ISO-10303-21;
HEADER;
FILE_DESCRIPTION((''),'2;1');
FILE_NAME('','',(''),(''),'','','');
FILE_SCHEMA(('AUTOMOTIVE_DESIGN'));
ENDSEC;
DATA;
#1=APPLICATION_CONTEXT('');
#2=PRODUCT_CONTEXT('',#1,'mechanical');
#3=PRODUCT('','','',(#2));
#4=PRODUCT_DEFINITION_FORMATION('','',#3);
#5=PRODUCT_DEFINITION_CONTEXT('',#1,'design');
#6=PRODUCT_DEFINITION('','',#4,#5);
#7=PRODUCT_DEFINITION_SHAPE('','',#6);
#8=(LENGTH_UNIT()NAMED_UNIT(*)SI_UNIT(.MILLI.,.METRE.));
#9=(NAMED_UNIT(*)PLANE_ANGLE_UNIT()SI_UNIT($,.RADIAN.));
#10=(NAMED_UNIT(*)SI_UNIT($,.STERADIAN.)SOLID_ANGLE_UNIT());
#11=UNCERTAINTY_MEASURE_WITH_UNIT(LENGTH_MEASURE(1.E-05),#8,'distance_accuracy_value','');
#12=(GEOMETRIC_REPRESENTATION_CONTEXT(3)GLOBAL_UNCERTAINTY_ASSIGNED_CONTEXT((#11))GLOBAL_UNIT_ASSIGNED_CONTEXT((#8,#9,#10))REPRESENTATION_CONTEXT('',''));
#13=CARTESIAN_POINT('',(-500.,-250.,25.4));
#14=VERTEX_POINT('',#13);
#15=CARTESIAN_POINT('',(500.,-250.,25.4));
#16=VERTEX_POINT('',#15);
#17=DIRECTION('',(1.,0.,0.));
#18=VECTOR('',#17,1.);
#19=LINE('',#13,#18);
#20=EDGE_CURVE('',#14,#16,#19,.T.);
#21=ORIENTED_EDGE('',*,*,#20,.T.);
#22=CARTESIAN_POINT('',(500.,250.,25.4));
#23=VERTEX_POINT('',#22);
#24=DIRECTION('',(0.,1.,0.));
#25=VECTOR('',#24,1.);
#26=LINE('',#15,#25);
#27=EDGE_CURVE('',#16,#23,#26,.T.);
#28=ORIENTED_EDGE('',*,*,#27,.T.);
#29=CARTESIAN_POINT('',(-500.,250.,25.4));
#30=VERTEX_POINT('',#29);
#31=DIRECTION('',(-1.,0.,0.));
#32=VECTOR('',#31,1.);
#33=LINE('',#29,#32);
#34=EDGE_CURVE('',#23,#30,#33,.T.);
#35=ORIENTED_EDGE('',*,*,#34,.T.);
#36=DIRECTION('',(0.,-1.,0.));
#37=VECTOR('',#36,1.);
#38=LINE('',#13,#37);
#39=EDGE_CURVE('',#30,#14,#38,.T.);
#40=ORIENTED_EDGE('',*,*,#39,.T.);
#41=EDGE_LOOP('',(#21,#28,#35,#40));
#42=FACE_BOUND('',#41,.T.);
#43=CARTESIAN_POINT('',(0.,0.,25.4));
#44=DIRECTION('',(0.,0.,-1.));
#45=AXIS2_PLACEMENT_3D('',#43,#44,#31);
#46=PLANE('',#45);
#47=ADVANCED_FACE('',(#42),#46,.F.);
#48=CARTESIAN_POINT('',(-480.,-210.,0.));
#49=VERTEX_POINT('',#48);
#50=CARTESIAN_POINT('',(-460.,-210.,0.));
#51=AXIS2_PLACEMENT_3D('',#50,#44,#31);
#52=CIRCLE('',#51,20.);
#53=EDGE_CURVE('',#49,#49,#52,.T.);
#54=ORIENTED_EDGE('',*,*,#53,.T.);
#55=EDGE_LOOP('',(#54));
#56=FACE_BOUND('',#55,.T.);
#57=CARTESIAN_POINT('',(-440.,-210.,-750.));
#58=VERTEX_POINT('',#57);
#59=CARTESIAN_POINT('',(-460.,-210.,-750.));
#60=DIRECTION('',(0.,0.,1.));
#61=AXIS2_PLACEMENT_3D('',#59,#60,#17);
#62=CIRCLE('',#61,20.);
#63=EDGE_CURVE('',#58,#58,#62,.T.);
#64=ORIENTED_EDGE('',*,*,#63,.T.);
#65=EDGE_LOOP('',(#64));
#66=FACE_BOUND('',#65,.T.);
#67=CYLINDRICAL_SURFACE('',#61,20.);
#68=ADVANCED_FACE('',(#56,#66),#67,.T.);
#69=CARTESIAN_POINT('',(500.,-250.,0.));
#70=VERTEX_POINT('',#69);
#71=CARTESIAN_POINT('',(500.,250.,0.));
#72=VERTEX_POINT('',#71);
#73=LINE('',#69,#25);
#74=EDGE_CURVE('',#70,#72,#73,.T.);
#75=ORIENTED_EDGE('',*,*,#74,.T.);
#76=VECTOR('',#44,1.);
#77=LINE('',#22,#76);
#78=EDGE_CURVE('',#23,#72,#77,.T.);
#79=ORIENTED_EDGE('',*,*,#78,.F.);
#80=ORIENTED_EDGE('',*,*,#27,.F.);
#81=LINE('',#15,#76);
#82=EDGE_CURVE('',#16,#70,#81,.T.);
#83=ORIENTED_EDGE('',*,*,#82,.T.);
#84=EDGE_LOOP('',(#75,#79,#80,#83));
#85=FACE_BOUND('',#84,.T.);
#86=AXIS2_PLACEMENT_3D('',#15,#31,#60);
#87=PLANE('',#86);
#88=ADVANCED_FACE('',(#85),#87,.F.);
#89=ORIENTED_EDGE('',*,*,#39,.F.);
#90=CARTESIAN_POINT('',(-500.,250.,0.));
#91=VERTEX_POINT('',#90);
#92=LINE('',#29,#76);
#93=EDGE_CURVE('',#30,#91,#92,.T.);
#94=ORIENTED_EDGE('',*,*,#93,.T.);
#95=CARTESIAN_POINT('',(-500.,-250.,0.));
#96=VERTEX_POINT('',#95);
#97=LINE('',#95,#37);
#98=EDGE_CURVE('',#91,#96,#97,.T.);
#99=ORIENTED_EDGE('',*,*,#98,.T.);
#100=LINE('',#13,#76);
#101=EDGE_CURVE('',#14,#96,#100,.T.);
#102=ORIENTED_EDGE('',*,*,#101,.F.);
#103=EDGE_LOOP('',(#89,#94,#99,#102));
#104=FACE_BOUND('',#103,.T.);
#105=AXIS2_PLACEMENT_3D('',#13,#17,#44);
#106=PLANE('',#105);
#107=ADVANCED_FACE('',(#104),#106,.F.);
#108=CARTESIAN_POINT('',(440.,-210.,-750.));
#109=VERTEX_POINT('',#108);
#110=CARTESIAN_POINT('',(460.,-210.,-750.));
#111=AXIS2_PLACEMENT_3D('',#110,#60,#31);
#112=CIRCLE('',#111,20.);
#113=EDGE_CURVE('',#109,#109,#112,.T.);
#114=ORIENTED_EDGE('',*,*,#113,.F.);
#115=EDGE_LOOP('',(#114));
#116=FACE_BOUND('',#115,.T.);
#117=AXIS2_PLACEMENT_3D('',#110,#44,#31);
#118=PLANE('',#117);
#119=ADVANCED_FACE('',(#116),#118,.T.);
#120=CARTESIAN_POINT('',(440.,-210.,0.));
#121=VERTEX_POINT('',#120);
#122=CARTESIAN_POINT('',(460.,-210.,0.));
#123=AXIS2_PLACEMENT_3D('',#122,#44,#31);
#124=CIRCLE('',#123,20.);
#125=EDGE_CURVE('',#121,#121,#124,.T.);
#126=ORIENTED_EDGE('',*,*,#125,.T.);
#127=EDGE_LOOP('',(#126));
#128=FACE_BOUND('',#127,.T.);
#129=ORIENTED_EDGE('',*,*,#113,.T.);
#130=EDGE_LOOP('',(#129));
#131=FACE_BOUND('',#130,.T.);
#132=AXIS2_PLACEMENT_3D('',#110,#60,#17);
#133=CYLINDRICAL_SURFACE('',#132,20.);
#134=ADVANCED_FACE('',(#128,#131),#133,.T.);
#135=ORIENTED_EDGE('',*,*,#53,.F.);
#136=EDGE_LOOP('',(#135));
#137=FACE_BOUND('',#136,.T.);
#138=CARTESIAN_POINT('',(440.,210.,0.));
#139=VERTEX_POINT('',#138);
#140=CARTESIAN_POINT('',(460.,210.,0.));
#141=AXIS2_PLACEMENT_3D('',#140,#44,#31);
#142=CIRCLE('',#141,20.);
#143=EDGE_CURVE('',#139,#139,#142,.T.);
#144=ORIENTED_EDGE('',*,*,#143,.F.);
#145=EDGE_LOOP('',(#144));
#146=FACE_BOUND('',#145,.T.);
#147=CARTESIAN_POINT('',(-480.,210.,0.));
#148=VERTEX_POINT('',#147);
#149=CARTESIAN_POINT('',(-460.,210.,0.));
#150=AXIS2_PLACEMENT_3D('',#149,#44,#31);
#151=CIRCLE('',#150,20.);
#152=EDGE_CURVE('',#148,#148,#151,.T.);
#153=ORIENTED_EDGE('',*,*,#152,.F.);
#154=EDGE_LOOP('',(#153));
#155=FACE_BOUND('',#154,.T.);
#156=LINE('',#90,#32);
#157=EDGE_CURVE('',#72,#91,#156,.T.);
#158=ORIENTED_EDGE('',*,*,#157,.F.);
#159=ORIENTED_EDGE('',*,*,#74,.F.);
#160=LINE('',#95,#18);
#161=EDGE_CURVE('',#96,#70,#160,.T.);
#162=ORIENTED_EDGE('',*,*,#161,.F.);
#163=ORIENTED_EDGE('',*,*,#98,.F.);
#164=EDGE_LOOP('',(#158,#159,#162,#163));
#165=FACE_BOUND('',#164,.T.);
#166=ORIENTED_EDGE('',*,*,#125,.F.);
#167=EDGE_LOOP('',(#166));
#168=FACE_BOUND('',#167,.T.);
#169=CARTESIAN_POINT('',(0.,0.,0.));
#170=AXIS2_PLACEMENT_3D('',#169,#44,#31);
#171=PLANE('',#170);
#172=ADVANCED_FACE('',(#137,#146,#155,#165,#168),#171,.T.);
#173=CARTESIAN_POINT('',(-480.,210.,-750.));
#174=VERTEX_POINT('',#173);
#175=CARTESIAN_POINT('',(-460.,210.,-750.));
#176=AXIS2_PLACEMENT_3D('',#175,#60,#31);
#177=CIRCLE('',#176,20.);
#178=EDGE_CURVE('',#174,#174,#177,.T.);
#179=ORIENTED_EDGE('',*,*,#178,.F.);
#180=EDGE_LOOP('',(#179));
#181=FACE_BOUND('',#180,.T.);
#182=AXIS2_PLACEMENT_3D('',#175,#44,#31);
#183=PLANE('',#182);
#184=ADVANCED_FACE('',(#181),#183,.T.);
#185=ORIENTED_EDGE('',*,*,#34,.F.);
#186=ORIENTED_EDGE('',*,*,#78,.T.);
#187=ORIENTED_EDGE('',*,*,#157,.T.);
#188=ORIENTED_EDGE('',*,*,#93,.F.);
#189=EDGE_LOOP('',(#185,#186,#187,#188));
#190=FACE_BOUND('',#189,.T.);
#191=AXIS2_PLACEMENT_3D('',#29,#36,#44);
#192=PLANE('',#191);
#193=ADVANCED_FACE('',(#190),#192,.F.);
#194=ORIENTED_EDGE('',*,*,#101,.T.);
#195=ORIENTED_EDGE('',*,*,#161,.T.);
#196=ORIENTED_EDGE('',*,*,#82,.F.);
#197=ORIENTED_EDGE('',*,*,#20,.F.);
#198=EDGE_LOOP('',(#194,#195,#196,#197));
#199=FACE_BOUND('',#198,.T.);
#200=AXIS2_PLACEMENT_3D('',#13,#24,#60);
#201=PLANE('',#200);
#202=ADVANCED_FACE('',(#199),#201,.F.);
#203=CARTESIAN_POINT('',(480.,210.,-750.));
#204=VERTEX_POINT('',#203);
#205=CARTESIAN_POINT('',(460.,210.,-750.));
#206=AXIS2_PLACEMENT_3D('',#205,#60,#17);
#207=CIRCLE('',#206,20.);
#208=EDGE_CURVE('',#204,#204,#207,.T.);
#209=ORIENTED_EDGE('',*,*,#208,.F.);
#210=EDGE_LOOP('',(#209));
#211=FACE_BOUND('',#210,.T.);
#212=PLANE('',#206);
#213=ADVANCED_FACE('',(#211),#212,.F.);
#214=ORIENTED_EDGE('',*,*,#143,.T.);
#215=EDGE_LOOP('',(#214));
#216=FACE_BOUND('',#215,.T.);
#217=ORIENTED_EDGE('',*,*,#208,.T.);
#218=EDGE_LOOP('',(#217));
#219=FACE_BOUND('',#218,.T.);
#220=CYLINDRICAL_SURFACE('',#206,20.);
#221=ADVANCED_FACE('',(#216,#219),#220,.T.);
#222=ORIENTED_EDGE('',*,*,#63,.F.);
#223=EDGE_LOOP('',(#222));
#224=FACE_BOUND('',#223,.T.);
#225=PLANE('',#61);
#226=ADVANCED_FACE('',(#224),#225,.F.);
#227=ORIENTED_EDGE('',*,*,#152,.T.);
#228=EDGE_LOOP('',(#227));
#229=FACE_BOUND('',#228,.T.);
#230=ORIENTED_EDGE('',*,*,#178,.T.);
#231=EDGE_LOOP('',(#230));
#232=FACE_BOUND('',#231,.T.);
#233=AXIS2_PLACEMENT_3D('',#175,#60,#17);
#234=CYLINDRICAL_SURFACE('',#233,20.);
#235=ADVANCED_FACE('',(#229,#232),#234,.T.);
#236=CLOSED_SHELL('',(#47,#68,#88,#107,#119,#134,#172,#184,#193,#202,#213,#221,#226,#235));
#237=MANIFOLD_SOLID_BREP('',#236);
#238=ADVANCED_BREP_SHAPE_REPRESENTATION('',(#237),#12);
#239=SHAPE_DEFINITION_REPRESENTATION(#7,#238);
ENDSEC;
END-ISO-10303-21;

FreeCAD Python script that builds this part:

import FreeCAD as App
import Part
import Sketcher

doc = App.newDocument("Part")
body = doc.addObject("PartDesign::Body", "Body")

# Sketch on XY plane
sketch1 = body.newObject("Sketcher::SketchObject", "Sketch")
sketch1.AttachmentSupport = (doc.getObject("XY_Plane"), [""])
sketch1.MapMode = "FlatFace"
sketch1.addGeometry(Part.LineSegment(App.Vector(-500, 250, 0), App.Vector(-500, -250, 0)), False)
sketch1.addGeometry(Part.LineSegment(App.Vector(-500, -250, 0), App.Vector(500, -250, 0)), False)
sketch1.addGeometry(Part.LineSegment(App.Vector(500, -250, 0), App.Vector(500, 250, 0)), False)
sketch1.addGeometry(Part.LineSegment(App.Vector(500, 250, 0), App.Vector(-500, 250, 0)), False)
sketch1.addConstraint(Sketcher.Constraint("Coincident", 0, 2, 1, 1))
sketch1.addConstraint(Sketcher.Constraint("Coincident", 1, 2, 2, 1))
sketch1.addConstraint(Sketcher.Constraint("Coincident", 2, 2, 3, 1))
sketch1.addConstraint(Sketcher.Constraint("Coincident", 3, 2, 0, 1))
sketch1.addConstraint(Sketcher.Constraint("Vertical", 0))
sketch1.addConstraint(Sketcher.Constraint("Horizontal", 1))
sketch1.addConstraint(Sketcher.Constraint("Vertical", 2))
sketch1.addConstraint(Sketcher.Constraint("Horizontal", 3))
sketch1.addConstraint(Sketcher.Constraint("Symmetric", 0, 2, 2, 2, -1, 1))
sketch1.addConstraint(Sketcher.Constraint("DistanceX", 1, 1, 1, 2, 1000.0))
sketch1.addConstraint(Sketcher.Constraint("DistanceY", 0, 2, 0, 1, 500.0))
pad1 = body.newObject("PartDesign::Pad", "Pad")
pad1.Profile = sketch1
pad1.Length = 25.4

# Sketch on XY plane
sketch2 = body.newObject("Sketcher::SketchObject", "Sketch001")
sketch2.AttachmentSupport = (doc.getObject("XY_Plane"), [""])
sketch2.MapMode = "FlatFace"
sketch2.addGeometry(Part.Circle(App.Vector(460, 210, 0), App.Vector(0, 0, 1), 20), False)
sketch2.addGeometry(Part.Circle(App.Vector(460, -210, 0), App.Vector(0, 0, 1), 20), False)
sketch2.addGeometry(Part.Circle(App.Vector(-460, -210, 0), App.Vector(0, 0, 1), 20), False)
sketch2.addGeometry(Part.Circle(App.Vector(-460, 210, 0), App.Vector(0, 0, 1), 20), False)
sketch2.addConstraint(Sketcher.Constraint("Equal", 0, 1))
sketch2.addConstraint(Sketcher.Constraint("Equal", 1, 2))
sketch2.addConstraint(Sketcher.Constraint("Equal", 2, 3))
sketch2.addConstraint(Sketcher.Constraint("Symmetric", 0, 3, 2, 3, -1, 1))
sketch2.addConstraint(Sketcher.Constraint("Symmetric", 1, 3, 3, 3, -1, 1))
sketch2.addConstraint(Sketcher.Constraint("Symmetric", 1, 3, 2, 3, -2))
sketch2.addConstraint(Sketcher.Constraint("Diameter", 0, 40.0))
sketch2.addConstraint(Sketcher.Constraint("DistanceX", -1, 1, 0, 3, 460.0))
sketch2.addConstraint(Sketcher.Constraint("DistanceY", -1, 1, 0, 3, 210.0))
pad2 = body.newObject("PartDesign::Pad", "Pad001")
pad2.Profile = sketch2
pad2.Length = 750
pad2.Reversed = True

doc.recompute()
